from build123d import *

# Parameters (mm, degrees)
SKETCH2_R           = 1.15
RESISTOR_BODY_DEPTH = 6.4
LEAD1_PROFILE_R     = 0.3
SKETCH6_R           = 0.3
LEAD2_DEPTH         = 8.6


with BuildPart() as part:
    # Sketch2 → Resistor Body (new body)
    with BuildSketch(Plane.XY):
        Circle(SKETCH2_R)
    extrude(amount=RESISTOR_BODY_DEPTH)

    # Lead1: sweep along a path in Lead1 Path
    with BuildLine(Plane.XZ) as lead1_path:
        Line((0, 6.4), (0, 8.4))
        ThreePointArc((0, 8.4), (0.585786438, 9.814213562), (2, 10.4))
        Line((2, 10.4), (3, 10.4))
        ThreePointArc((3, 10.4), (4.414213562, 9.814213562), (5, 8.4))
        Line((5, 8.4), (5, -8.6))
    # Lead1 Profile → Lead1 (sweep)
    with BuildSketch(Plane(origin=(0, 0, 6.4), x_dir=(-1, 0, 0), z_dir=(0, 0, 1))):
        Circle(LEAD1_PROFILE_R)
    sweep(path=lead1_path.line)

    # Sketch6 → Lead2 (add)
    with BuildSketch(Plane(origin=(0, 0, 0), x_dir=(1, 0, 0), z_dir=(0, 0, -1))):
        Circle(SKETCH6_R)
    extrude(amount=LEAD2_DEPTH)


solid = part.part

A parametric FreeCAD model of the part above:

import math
import FreeCAD as App
import Part
import Sketcher
from FreeCAD import Vector

doc = App.newDocument("Part")
body = doc.addObject("PartDesign::Body", "Body")

# Sketch on XY plane
sketch1 = body.newObject("Sketcher::SketchObject", "Sketch")
sketch1.AttachmentSupport = (doc.getObject("XY_Plane"), [""])
sketch1.MapMode = "FlatFace"
sketch1.addGeometry(Part.Circle(Vector(0, 0, 0), Vector(0, 0, 1), 1.1), False)
sketch1.addConstraint([
    Sketcher.Constraint("Coincident", 0, 3, -1, 1),
    Sketcher.Constraint("Diameter", 0, 2.3),
])
pad1 = body.newObject("PartDesign::Pad", "Pad")
pad1.Profile = sketch1
pad1.Length = 6.4

# Sketch on XY plane
sketch2 = body.newObject("Sketcher::SketchObject", "Sketch001")
sketch2.AttachmentSupport = (doc.getObject("XY_Plane"), [""])
sketch2.MapMode = "FlatFace"
sketch2.AttachmentOffset = App.Placement(Vector(0, 0, 6.4), App.Rotation())
sketch2.addGeometry(Part.Circle(Vector(0, 0, 0), Vector(0, 0, 1), 0.3), False)
sketch2.addConstraint([
    Sketcher.Constraint("Coincident", 0, 3, -1, 1),
    Sketcher.Constraint("Diameter", 0, 0.6),
])

# Sketch on XZ plane
sketch3 = body.newObject("Sketcher::SketchObject", "Sketch002")
sketch3.AttachmentSupport = (doc.getObject("XZ_Plane"), [""])
sketch3.MapMode = "FlatFace"
sketch3.addGeometry([
    Part.LineSegment(Vector(0, 6.4, 0), Vector(0, 8.4, 0)),  # 0
    Part.ArcOfCircle(Part.Circle(Vector(2, 8.4, 0), Vector(0, 0, 1), 2), math.radians(90), math.radians(180)),  # 1
    Part.LineSegment(Vector(2, 10.4, 0), Vector(3, 10.4, 0)),  # 2
    Part.ArcOfCircle(Part.Circle(Vector(3, 8.4, 0), Vector(0, 0, 1), 2), math.radians(0), math.radians(90)),  # 3
    Part.LineSegment(Vector(5, 8.4, 0), Vector(5, -8.6, 0)),  # 4
], False)
sketch3.addConstraint([
    Sketcher.Constraint("Tangent", 0, 2, 1, 2),
    Sketcher.Constraint("Tangent", 1, 1, 2, 1),
    Sketcher.Constraint("Tangent", 2, 2, 3, 2),
    Sketcher.Constraint("Tangent", 3, 1, 4, 1),
    Sketcher.Constraint("Vertical", 0),
    Sketcher.Constraint("Horizontal", 2),
    Sketcher.Constraint("Vertical", 4),
    Sketcher.Constraint("Equal", 1, 3),
    Sketcher.Constraint("PointOnObject", 0, 1, -2),
    Sketcher.Constraint("Radius", 1, 2.0),
    Sketcher.Constraint("DistanceX", 2, 1, 2, 2, 1.0),
    Sketcher.Constraint("DistanceY", 0, 1, 0, 2, 2.0),
    Sketcher.Constraint("DistanceY", 4, 2, 4, 1, 17.0),
    Sketcher.Constraint("DistanceY", -1, 1, 1, 3, 8.4),
])
doc.recompute()

additivepipe = body.newObject("PartDesign::AdditivePipe", "AdditivePipe")
additivepipe.Profile = sketch2
additivepipe.Spine = (sketch3, ["Edge1", "Edge2", "Edge3", "Edge4", "Edge5"])

# Sketch on XY plane
sketch4 = body.newObject("Sketcher::SketchObject", "Sketch003")
sketch4.AttachmentSupport = (doc.getObject("XY_Plane"), [""])
sketch4.MapMode = "FlatFace"
sketch4.addGeometry(Part.Circle(Vector(0, 0, 0), Vector(0, 0, 1), 0.3), False)
sketch4.addConstraint([
    Sketcher.Constraint("Coincident", 0, 3, -1, 1),
    Sketcher.Constraint("Diameter", 0, 0.6),
])
pad2 = body.newObject("PartDesign::Pad", "Pad001")
pad2.Profile = sketch4
pad2.Length = 8.6
pad2.Reversed = True

doc.recompute()
